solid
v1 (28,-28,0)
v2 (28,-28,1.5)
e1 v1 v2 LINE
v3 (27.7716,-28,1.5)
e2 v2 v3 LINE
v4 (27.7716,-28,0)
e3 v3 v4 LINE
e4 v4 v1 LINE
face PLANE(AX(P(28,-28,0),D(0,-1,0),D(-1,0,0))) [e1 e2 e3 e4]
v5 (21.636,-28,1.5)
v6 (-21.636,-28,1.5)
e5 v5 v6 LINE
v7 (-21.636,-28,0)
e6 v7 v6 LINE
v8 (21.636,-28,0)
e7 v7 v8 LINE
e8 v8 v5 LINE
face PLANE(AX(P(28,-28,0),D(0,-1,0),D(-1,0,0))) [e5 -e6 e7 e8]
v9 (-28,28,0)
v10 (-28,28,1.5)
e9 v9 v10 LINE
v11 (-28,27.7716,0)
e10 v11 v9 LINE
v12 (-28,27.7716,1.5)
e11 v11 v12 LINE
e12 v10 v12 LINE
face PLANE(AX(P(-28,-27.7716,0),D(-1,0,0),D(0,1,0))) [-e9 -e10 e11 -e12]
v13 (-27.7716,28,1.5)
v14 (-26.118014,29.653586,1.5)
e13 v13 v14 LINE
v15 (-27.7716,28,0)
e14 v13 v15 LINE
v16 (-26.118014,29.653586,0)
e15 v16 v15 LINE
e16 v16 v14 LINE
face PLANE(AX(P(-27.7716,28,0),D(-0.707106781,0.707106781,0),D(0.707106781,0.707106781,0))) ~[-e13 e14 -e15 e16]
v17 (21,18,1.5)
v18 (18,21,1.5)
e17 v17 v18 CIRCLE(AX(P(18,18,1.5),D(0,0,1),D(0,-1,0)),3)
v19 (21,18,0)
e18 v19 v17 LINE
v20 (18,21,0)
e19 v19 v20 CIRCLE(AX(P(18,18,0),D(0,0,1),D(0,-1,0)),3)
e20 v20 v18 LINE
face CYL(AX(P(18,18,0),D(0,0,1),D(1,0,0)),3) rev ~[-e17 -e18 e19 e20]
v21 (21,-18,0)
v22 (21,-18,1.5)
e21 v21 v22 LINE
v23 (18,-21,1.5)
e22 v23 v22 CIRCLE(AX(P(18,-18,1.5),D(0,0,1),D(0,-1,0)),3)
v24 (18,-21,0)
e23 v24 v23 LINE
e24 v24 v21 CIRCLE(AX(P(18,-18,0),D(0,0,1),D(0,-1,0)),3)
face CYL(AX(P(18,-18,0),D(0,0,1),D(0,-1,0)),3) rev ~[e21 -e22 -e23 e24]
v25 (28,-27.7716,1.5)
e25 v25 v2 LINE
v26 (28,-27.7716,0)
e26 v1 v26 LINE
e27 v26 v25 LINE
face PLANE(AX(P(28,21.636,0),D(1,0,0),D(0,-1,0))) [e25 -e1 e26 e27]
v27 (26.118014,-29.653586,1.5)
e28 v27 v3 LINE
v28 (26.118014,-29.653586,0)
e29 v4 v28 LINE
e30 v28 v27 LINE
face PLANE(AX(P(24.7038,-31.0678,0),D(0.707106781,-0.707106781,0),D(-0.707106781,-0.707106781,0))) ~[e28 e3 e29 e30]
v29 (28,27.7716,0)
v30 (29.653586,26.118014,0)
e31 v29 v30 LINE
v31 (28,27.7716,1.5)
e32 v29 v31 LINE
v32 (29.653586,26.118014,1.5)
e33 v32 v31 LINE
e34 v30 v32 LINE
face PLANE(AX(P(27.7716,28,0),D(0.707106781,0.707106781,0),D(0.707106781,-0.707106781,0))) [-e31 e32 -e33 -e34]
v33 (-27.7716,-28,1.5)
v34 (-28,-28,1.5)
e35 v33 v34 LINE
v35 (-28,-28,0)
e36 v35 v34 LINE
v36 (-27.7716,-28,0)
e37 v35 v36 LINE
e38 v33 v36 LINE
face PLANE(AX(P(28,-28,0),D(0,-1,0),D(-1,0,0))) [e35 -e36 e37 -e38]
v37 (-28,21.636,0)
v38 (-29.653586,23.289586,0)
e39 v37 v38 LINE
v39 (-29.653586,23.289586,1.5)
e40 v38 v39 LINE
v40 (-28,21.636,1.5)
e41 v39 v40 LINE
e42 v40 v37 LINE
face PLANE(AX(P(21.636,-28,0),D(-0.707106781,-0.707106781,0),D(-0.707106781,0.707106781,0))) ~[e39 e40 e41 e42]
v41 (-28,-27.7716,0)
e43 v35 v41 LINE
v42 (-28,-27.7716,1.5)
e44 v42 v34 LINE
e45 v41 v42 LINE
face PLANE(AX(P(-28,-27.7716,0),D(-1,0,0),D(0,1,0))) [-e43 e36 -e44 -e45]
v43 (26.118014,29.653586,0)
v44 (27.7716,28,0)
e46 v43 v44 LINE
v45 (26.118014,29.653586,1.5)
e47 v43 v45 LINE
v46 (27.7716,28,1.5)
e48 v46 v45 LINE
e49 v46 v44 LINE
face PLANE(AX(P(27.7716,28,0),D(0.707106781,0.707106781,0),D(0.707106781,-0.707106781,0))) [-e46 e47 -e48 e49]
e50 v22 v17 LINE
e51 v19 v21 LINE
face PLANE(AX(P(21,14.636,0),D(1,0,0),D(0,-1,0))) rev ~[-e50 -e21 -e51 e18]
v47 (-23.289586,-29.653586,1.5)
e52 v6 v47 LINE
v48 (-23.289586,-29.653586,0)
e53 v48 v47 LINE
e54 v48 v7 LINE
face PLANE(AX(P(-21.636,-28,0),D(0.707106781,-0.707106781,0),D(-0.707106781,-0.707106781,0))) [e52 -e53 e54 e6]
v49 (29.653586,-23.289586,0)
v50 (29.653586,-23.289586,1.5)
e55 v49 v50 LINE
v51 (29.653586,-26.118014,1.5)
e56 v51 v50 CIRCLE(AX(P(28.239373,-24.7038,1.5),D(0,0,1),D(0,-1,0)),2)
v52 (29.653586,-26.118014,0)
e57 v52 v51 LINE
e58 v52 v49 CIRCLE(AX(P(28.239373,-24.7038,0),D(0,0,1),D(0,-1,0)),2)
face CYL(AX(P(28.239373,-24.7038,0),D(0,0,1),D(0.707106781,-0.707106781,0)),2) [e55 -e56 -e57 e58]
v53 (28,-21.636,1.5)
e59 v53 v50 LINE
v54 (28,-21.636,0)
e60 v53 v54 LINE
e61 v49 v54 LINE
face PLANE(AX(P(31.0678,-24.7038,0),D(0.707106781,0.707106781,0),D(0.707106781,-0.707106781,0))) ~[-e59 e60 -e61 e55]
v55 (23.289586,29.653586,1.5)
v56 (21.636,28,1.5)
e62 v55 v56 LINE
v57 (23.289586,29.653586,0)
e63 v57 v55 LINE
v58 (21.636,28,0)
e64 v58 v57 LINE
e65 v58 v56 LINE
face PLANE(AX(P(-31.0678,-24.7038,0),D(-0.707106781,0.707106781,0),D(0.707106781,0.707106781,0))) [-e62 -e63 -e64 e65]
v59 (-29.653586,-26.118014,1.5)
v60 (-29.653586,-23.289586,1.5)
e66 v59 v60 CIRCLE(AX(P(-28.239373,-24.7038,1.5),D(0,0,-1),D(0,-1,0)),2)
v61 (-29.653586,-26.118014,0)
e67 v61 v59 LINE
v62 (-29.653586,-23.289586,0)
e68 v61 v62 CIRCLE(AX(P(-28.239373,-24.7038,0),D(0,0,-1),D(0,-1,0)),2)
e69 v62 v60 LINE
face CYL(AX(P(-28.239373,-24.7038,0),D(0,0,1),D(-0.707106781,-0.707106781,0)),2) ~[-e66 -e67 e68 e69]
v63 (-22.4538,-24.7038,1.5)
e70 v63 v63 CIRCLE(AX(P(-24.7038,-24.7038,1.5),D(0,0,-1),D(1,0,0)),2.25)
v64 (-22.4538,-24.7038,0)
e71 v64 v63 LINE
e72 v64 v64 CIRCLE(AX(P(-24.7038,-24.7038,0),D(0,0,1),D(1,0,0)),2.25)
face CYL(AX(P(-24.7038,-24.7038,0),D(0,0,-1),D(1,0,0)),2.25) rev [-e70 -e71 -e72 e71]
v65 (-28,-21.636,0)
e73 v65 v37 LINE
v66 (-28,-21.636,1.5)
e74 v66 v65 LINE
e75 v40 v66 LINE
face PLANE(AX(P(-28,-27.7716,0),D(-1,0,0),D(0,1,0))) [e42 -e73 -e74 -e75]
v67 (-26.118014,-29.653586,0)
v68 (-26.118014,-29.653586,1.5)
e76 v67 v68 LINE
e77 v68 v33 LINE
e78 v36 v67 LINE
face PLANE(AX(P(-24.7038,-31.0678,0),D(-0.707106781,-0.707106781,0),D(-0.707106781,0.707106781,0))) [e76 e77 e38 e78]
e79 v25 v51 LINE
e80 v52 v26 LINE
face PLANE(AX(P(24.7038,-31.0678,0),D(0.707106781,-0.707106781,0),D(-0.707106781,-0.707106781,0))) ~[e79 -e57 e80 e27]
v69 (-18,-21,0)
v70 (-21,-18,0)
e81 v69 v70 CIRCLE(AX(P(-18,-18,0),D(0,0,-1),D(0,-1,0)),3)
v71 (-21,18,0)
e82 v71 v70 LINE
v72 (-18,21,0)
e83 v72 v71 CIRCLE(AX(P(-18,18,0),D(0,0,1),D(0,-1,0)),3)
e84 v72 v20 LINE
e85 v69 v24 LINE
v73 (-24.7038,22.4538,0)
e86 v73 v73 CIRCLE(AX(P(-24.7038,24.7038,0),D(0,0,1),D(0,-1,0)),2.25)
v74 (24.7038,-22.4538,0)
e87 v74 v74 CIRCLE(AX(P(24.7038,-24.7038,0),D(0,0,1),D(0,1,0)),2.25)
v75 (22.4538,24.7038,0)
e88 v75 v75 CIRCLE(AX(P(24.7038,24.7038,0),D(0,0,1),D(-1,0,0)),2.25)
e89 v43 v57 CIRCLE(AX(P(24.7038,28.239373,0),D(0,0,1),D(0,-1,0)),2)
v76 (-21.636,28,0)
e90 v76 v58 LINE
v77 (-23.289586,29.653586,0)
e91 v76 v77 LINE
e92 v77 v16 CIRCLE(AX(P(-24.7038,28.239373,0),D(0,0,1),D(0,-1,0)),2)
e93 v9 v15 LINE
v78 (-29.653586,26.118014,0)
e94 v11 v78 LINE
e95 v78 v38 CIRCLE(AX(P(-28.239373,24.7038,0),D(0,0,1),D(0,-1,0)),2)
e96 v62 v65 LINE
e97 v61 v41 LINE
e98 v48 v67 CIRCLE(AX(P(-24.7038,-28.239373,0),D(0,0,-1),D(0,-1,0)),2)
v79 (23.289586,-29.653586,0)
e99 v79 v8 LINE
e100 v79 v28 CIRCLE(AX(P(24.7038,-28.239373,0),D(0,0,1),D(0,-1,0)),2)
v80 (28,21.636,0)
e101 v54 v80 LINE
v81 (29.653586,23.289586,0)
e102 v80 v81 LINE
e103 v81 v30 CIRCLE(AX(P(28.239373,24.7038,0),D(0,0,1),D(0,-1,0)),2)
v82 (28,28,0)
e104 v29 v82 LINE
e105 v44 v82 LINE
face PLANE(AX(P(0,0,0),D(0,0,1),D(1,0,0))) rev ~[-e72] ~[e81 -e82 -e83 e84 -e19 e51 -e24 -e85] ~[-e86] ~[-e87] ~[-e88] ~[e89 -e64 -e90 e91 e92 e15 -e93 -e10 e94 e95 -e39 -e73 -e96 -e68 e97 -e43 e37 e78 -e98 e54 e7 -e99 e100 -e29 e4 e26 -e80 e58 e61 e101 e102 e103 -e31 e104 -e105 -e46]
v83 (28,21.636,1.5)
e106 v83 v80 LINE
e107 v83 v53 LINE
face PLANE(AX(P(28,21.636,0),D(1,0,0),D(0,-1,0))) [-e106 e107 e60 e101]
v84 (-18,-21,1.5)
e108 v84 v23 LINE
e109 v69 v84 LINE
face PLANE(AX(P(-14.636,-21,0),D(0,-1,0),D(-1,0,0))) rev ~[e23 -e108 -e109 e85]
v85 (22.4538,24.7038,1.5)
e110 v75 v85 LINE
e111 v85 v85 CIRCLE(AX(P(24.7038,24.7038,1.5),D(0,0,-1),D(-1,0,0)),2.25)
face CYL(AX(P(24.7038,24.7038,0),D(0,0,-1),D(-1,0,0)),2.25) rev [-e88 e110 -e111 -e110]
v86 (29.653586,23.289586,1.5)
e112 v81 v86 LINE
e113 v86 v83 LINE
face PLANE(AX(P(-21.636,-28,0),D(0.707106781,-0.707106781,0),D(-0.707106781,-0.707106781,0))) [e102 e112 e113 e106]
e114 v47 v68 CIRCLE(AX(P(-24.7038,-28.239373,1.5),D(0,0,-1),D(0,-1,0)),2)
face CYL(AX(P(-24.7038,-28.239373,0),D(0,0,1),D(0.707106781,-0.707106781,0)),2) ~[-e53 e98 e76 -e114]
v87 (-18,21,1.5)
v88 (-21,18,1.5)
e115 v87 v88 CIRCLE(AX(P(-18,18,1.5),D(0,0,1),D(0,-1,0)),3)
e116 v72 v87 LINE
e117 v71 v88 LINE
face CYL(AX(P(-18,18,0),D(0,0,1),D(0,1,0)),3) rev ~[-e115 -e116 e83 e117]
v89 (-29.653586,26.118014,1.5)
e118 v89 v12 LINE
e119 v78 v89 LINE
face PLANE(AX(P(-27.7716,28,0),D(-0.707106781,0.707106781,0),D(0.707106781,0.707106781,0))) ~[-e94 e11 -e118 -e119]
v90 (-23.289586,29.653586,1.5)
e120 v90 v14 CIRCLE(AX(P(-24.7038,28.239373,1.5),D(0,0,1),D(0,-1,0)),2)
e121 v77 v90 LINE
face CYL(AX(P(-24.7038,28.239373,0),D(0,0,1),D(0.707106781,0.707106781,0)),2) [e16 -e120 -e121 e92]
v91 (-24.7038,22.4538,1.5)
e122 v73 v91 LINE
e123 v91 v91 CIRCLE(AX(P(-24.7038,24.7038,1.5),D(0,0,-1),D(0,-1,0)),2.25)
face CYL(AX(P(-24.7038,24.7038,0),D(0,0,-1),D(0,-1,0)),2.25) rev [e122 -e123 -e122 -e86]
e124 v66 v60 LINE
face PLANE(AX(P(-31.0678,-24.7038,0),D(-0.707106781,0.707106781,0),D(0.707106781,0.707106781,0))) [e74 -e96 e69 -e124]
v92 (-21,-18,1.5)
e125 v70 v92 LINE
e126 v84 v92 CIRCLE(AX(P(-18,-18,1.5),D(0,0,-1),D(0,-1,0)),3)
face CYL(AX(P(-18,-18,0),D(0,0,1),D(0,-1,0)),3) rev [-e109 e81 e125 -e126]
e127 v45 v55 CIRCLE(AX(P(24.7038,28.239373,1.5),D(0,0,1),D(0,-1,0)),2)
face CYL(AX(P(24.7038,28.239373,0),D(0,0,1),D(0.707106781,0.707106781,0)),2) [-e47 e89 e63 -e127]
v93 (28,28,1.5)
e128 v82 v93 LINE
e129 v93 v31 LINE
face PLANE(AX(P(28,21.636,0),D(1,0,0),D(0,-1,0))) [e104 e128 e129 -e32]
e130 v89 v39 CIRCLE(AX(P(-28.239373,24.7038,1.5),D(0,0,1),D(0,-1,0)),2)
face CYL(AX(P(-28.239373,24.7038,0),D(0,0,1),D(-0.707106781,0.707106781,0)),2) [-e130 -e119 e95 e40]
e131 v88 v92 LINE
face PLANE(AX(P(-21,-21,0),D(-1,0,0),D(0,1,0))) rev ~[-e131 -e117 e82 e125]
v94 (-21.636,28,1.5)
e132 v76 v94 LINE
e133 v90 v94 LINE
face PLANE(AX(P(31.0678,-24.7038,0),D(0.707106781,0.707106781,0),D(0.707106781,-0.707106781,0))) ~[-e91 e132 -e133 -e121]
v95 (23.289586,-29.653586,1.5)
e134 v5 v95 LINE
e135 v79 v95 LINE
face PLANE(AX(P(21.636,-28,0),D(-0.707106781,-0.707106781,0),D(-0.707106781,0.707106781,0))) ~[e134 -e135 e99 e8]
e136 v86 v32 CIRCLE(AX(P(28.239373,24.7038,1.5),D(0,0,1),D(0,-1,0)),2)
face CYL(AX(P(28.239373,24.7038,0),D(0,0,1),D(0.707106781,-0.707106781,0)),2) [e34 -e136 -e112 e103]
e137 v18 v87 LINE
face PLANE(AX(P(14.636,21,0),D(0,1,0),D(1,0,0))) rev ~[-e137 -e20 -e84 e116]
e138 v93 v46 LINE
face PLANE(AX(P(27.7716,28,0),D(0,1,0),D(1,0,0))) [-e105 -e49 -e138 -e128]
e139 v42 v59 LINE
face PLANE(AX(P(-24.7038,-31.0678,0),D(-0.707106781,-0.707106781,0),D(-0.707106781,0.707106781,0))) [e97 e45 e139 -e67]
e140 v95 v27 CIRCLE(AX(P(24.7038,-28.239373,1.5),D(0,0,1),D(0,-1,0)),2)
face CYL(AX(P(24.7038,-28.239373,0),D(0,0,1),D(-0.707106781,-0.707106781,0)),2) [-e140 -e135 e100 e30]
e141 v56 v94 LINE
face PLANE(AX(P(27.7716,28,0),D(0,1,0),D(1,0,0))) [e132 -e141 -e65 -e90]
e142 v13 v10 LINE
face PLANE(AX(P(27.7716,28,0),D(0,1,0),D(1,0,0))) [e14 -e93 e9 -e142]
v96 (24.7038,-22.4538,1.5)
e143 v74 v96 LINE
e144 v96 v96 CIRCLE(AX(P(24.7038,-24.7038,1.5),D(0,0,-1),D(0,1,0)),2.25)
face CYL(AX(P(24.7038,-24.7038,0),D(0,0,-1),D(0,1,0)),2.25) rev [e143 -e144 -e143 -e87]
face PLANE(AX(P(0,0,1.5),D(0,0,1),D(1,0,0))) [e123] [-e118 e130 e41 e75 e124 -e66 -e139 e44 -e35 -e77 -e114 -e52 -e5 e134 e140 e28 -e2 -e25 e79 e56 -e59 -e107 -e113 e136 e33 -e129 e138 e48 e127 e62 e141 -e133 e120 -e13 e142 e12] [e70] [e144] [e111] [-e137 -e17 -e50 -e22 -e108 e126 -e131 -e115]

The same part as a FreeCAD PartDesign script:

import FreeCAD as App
import Part
import Sketcher

V = App.Vector
Q = App.Units.Quantity


def edges_at(feature, points):
    """Names of the edges that pass closest to the given points."""
    edges = feature.Shape.Edges
    near = lambda p: min(range(len(edges)), key=lambda i: edges[i].distToShape(Part.Vertex(*p))[0])
    return sorted({f"Edge{near(p) + 1}" for p in points})

doc = App.newDocument("Part")
body = doc.addObject("PartDesign::Body", "Body")

# Sketch on XY plane
sketch1 = body.newObject("Sketcher::SketchObject", "Sketch")
sketch1.AttachmentSupport = (doc.getObject("XY_Plane"), [""])
sketch1.MapMode = "FlatFace"
sketch1.addGeometry([
    Part.LineSegment(V(28, -28, 0), V(28, 28, 0)),
    Part.LineSegment(V(28, 28, 0), V(-28, 28, 0)),
    Part.LineSegment(V(-28, 28, 0), V(-28, -28, 0)),
    Part.LineSegment(V(-28, -28, 0), V(28, -28, 0)),
], False)
sketch1.addConstraint([
    Sketcher.Constraint("Coincident", 0, 2, 1, 1),
    Sketcher.Constraint("Coincident", 1, 2, 2, 1),
    Sketcher.Constraint("Coincident", 2, 2, 3, 1),
    Sketcher.Constraint("Coincident", 3, 2, 0, 1),
    Sketcher.Constraint("Vertical", 0),
    Sketcher.Constraint("Horizontal", 1),
    Sketcher.Constraint("Vertical", 2),
    Sketcher.Constraint("Horizontal", 3),
    Sketcher.Constraint("Symmetric", 0, 2, 2, 2, -1, 1),
    Sketcher.Constraint("Equal", 3, 0),
    Sketcher.Constraint("DistanceX", 1, 2, 1, 1, 56.0),
])
pad1 = body.newObject("PartDesign::Pad", "Pad")
pad1.Profile = sketch1
pad1.Length = 1.5

# Sketch on XY plane
sketch2 = body.newObject("Sketcher::SketchObject", "Sketch001")
sketch2.AttachmentSupport = (doc.getObject("XY_Plane"), [""])
sketch2.MapMode = "FlatFace"
sketch2.addGeometry([
    Part.LineSegment(V(-25, -31, 0), V(31, 25, 0)),
    Part.LineSegment(V(31, 25, 0), V(25, 31, 0)),
    Part.LineSegment(V(25, 31, 0), V(-31, -25, 0)),
    Part.LineSegment(V(-31, -25, 0), V(-25, -31, 0)),
], False)
sketch2.addConstraint([
    Sketcher.Constraint("Coincident", 0, 2, 1, 1),
    Sketcher.Constraint("Coincident", 1, 2, 2, 1),
    Sketcher.Constraint("Coincident", 2, 2, 3, 1),
    Sketcher.Constraint("Coincident", 3, 2, 0, 1),
    Sketcher.Constraint("Symmetric", 0, 2, 2, 2, -1, 1),
    Sketcher.Constraint("Symmetric", 1, 2, 3, 2, -1, 1),
    Sketcher.Constraint("Perpendicular", 0, 1),
    Sketcher.Constraint("Distance", 1, 9.0),
    Sketcher.Constraint("Angle", 0, Q("45 deg")),
    Sketcher.Constraint("Distance", 0, 78.873),
])
pad2 = body.newObject("PartDesign::Pad", "Pad001")
pad2.Profile = sketch2
pad2.Length = 1.5
doc.recompute()

mirrored = body.newObject("PartDesign::Mirrored", "Mirrored")
mirrored.Originals = [pad2]
mirrored.MirrorPlane = (doc.getObject("YZ_Plane"), [""])
body.Tip = mirrored

# Sketch on XY plane
sketch3 = body.newObject("Sketcher::SketchObject", "Sketch002")
sketch3.AttachmentSupport = (doc.getObject("XY_Plane"), [""])
sketch3.MapMode = "FlatFace"
sketch3.addGeometry(Part.Circle(V(-24.7, -24.7, 0), V(0, 0, 1), 2.2), False)
sketch3.addConstraint([
    Sketcher.Constraint("Diameter", 0, 4.5),
    Sketcher.Constraint("DistanceX", 0, 3, -1, 1, 24.7038),
    Sketcher.Constraint("DistanceY", 0, 3, -1, 1, 24.7038),
])
pocket1 = body.newObject("PartDesign::Pocket", "Pocket")
pocket1.Profile = sketch3
pocket1.Length = 10
pocket1.Reversed = True
doc.recompute()

polarpattern = body.newObject("PartDesign::PolarPattern", "PolarPattern")
polarpattern.Originals = [pocket1]
polarpattern.Axis = (doc.getObject("Z_Axis"), [""])
polarpattern.Angle = 360
polarpattern.Occurrences = 4
body.Tip = polarpattern
doc.recompute()

fillet = body.newObject("PartDesign::Fillet", "Fillet")
fillet.Base = (polarpattern, edges_at(polarpattern, [(-24.704, -31.068, 0.75), (-31.068, -24.704, 0.75)]))
fillet.Radius = 2
doc.recompute()

polarpattern2 = body.newObject("PartDesign::PolarPattern", "PolarPattern001")
polarpattern2.Originals = [fillet]
polarpattern2.Axis = (doc.getObject("Z_Axis"), [""])
polarpattern2.Angle = 360
polarpattern2.Occurrences = 4
body.Tip = polarpattern2

# Sketch on XY plane
sketch4 = body.newObject("Sketcher::SketchObject", "Sketch003")
sketch4.AttachmentSupport = (doc.getObject("XY_Plane"), [""])
sketch4.MapMode = "FlatFace"
sketch4.addGeometry([
    Part.LineSegment(V(-21, -21, 0), V(21, -21, 0)),
    Part.LineSegment(V(21, -21, 0), V(21, 21, 0)),
    Part.LineSegment(V(21, 21, 0), V(-21, 21, 0)),
    Part.LineSegment(V(-21, 21, 0), V(-21, -21, 0)),
], False)
sketch4.addConstraint([
    Sketcher.Constraint("Coincident", 0, 2, 1, 1),
    Sketcher.Constraint("Coincident", 1, 2, 2, 1),
    Sketcher.Constraint("Coincident", 2, 2, 3, 1),
    Sketcher.Constraint("Coincident", 3, 2, 0, 1),
    Sketcher.Constraint("Horizontal", 0),
    Sketcher.Constraint("Vertical", 1),
    Sketcher.Constraint("Horizontal", 2),
    Sketcher.Constraint("Vertical", 3),
    Sketcher.Constraint("Symmetric", 0, 2, 2, 2, -1, 1),
    Sketcher.Constraint("Equal", 2, 1),
    Sketcher.Constraint("DistanceX", 0, 1, 0, 2, 42.0),
])
pocket2 = body.newObject("PartDesign::Pocket", "Pocket001")
pocket2.Profile = sketch4
pocket2.Length = 10
pocket2.Reversed = True
doc.recompute()

fillet2 = body.newObject("PartDesign::Fillet", "Fillet001")
fillet2.Base = (pocket2, edges_at(pocket2, [
    (-21, 21, 0.75),
    (21, 21, 0.75),
    (21, -21, 0.75),
    (-21, -21, 0.75),
]))
fillet2.Radius = 3

doc.recompute()
